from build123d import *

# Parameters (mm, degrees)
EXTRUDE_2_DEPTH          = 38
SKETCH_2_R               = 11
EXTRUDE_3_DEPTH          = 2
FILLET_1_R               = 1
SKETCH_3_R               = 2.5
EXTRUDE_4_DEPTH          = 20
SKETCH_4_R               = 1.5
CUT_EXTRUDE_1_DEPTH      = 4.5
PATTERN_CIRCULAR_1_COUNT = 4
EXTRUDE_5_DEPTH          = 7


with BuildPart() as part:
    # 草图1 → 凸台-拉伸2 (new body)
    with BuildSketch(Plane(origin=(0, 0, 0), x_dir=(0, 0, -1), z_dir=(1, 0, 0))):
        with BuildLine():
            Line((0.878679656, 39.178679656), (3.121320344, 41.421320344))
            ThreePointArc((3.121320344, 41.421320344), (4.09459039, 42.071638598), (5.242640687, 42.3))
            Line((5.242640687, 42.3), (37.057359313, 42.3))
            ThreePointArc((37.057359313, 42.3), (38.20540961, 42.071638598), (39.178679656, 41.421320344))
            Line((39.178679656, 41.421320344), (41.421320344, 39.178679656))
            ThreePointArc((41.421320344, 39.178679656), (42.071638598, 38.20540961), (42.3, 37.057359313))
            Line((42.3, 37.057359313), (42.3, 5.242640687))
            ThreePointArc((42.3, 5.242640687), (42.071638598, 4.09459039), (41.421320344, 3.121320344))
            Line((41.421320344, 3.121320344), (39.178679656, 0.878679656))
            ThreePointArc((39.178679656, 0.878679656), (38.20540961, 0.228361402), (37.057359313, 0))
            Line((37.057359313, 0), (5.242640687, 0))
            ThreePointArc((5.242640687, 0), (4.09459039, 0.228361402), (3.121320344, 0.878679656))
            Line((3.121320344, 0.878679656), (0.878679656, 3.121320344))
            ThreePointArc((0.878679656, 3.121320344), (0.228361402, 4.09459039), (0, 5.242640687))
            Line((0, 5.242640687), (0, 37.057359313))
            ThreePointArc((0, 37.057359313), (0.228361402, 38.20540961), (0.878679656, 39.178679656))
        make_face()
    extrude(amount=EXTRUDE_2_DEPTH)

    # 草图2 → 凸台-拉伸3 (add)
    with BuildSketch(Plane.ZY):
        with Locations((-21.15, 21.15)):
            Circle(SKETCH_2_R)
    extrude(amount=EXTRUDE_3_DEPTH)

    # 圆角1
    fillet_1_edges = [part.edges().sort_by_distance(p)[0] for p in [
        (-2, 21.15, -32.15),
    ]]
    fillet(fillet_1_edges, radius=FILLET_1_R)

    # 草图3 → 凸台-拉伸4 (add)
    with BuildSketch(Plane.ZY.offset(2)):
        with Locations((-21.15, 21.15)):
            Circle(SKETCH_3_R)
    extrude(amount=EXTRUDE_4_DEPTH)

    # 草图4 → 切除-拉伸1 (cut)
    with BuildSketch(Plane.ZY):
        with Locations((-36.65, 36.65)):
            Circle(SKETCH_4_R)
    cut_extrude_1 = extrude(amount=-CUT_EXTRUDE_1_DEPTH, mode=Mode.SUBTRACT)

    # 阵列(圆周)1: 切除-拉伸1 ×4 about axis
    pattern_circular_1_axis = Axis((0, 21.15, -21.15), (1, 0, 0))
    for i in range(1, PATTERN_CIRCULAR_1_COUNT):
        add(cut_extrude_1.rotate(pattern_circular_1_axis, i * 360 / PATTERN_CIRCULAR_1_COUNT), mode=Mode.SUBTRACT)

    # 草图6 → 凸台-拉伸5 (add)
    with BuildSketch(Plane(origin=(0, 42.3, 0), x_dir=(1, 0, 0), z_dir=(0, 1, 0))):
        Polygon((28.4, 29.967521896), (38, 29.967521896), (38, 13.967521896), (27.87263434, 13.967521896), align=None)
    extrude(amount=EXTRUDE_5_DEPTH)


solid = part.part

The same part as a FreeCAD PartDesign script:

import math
import FreeCAD as App
import Part
import Sketcher
from FreeCAD import Vector


def edges_at(feature, points):
    """Names of the edges that pass closest to the given points."""
    edges = feature.Shape.Edges
    near = lambda p: min(range(len(edges)), key=lambda i: edges[i].distToShape(Part.Vertex(*p))[0])
    return sorted({f"Edge{near(p) + 1}" for p in points})


def add_polygon(sketch, points):
    """Adds a closed chain of lines whose ends are joined by coincident constraints."""
    first, n = sketch.GeometryCount, len(points)
    for a, b in zip(points, points[1:] + points[:1]):
        sketch.addGeometry(Part.LineSegment(App.Vector(*a, 0), App.Vector(*b, 0)), False)
    for i in range(n):
        sketch.addConstraint(Sketcher.Constraint("Coincident", first + i, 2, first + (i + 1) % n, 1))

doc = App.newDocument("Part")
body = doc.addObject("PartDesign::Body", "Body")

# Sketch on YZ plane
sketch1 = doc.addObject("Sketcher::SketchObject", "Sketch")
body.addObject(sketch1)
sketch1.AttachmentSupport = (doc.YZ_Plane, [""])
sketch1.MapMode = "FlatFace"
sketch1.addGeometry([
    Part.LineSegment(Vector(41.4, -3.1, 0), Vector(39.2, -0.9, 0)),  # 0
    Part.ArcOfCircle(Part.Circle(Vector(37.1, -3, 0), Vector(0, 0, 1), 3), math.radians(45), math.radians(90)),  # 1
    Part.LineSegment(Vector(37.1, 0, 0), Vector(5.2, 0, 0)),  # 2
    Part.ArcOfCircle(Part.Circle(Vector(5.2, -3, 0), Vector(0, 0, 1), 3), math.radians(90), math.radians(135)),  # 3
    Part.LineSegment(Vector(3.1, -0.9, 0), Vector(0.9, -3.1, 0)),  # 4
    Part.ArcOfCircle(Part.Circle(Vector(3, -5.2, 0), Vector(0, 0, 1), 3), math.radians(135), math.radians(180)),  # 5
    Part.LineSegment(Vector(0, -5.2, 0), Vector(0, -37.1, 0)),  # 6
    Part.ArcOfCircle(Part.Circle(Vector(3, -37.1, 0), Vector(0, 0, 1), 3), math.radians(180), math.radians(225)),  # 7
    Part.LineSegment(Vector(0.9, -39.2, 0), Vector(3.1, -41.4, 0)),  # 8
    Part.ArcOfCircle(Part.Circle(Vector(5.2, -39.3, 0), Vector(0, 0, 1), 3), math.radians(-135), math.radians(-90)),  # 9
    Part.LineSegment(Vector(5.2, -42.3, 0), Vector(37.1, -42.3, 0)),  # 10
    Part.ArcOfCircle(Part.Circle(Vector(37.1, -39.3, 0), Vector(0, 0, 1), 3), math.radians(-90), math.radians(-45)),  # 11
    Part.LineSegment(Vector(39.2, -41.4, 0), Vector(41.4, -39.2, 0)),  # 12
    Part.ArcOfCircle(Part.Circle(Vector(39.3, -37.1, 0), Vector(0, 0, 1), 3), math.radians(-45), math.radians(0)),  # 13
    Part.LineSegment(Vector(42.3, -37.1, 0), Vector(42.3, -5.2, 0)),  # 14
    Part.ArcOfCircle(Part.Circle(Vector(39.3, -5.2, 0), Vector(0, 0, 1), 3), math.radians(0), math.radians(45)),  # 15
], False)
sketch1.addConstraint([
    Sketcher.Constraint("Tangent", 0, 2, 1, 1),
    Sketcher.Constraint("Tangent", 1, 2, 2, 1),
    Sketcher.Constraint("Tangent", 2, 2, 3, 1),
    Sketcher.Constraint("Tangent", 3, 2, 4, 1),
    Sketcher.Constraint("Tangent", 4, 2, 5, 1),
    Sketcher.Constraint("Tangent", 5, 2, 6, 1),
    Sketcher.Constraint("Tangent", 6, 2, 7, 1),
    Sketcher.Constraint("Tangent", 7, 2, 8, 1),
    Sketcher.Constraint("Tangent", 8, 2, 9, 1),
    Sketcher.Constraint("Tangent", 9, 2, 10, 1),
    Sketcher.Constraint("Tangent", 10, 2, 11, 1),
    Sketcher.Constraint("Tangent", 11, 2, 12, 1),
    Sketcher.Constraint("Tangent", 12, 2, 13, 1),
    Sketcher.Constraint("Tangent", 13, 2, 14, 1),
    Sketcher.Constraint("Tangent", 14, 2, 15, 1),
    Sketcher.Constraint("Tangent", 15, 2, 0, 1),
    Sketcher.Constraint("Horizontal", 2),
    Sketcher.Constraint("Vertical", 6),
    Sketcher.Constraint("Horizontal", 10),
    Sketcher.Constraint("Vertical", 14),
    Sketcher.Constraint("Equal", 1, 3),
    Sketcher.Constraint("Equal", 3, 5),
    Sketcher.Constraint("Equal", 5, 7),
    Sketcher.Constraint("Equal", 7, 9),
    Sketcher.Constraint("Equal", 9, 11),
    Sketcher.Constraint("Equal", 11, 13),
    Sketcher.Constraint("Equal", 13, 15),
    Sketcher.Constraint("PointOnObject", 1, 2, -1),
    Sketcher.Constraint("PointOnObject", 5, 2, -2),
    Sketcher.Constraint("Perpendicular", 0, 4),
    Sketcher.Constraint("Perpendicular", 4, 8),
    Sketcher.Constraint("Perpendicular", 8, 12),
    Sketcher.Constraint("Horizontal", 7, 3, 13, 3),
    Sketcher.Constraint("Horizontal", 5, 3, 15, 3),
    Sketcher.Constraint("Horizontal", 0, 2, 3, 2),
    Sketcher.Constraint("Vertical", 3, 3, 9, 3),
    Sketcher.Constraint("Equal", 10, 6),
    Sketcher.Constraint("Radius", 1, 3.0),
    Sketcher.Constraint("DistanceY", 9, 3, -1, 1, 39.3),
    Sketcher.Constraint("DistanceX", 2, 2, 2, 1, 31.814719),
])
pad1 = doc.addObject("PartDesign::Pad", "Pad")
body.addObject(pad1)
pad1.Profile = sketch1
pad1.Length = 38

# Sketch on YZ plane
sketch2 = doc.addObject("Sketcher::SketchObject", "Sketch001")
body.addObject(sketch2)
sketch2.AttachmentSupport = (doc.YZ_Plane, [""])
sketch2.MapMode = "FlatFace"
sketch2.addGeometry(Part.Circle(Vector(21, -21, 0), Vector(0, 0, 1), 11), False)
sketch2.addConstraint([
    Sketcher.Constraint("Diameter", 0, 22.0),
    Sketcher.Constraint("DistanceX", -1, 1, 0, 3, 21.15),
    Sketcher.Constraint("DistanceY", 0, 3, -1, 1, 21.15),
])
pad2 = doc.addObject("PartDesign::Pad", "Pad001")
body.addObject(pad2)
pad2.Profile = sketch2
pad2.Length = 2
pad2.Reversed = True
doc.recompute()

fillet = doc.addObject("PartDesign::Fillet", "Fillet")
body.addObject(fillet)
fillet.Base = (pad2, edges_at(pad2, [(-2, 21.15, -32.15)]))
fillet.Radius = 1

# Sketch on YZ plane
sketch3 = doc.addObject("Sketcher::SketchObject", "Sketch002")
body.addObject(sketch3)
sketch3.AttachmentSupport = (doc.YZ_Plane, [""])
sketch3.MapMode = "FlatFace"
sketch3.AttachmentOffset = App.Placement(Vector(0, 0, -2), App.Rotation())
sketch3.addGeometry(Part.Circle(Vector(21.1, -21.1, 0), Vector(0, 0, 1), 2.5), False)
sketch3.addConstraint([
    Sketcher.Constraint("Diameter", 0, 5.0),
    Sketcher.Constraint("DistanceX", -1, 1, 0, 3, 21.15),
    Sketcher.Constraint("DistanceY", 0, 3, -1, 1, 21.15),
])
pad3 = doc.addObject("PartDesign::Pad", "Pad002")
body.addObject(pad3)
pad3.Profile = sketch3
pad3.Length = 20
pad3.Reversed = True

# Sketch on YZ plane
sketch4 = doc.addObject("Sketcher::SketchObject", "Sketch003")
body.addObject(sketch4)
sketch4.AttachmentSupport = (doc.YZ_Plane, [""])
sketch4.MapMode = "FlatFace"
sketch4.addGeometry(Part.Circle(Vector(36.6, -36.6, 0), Vector(0, 0, 1), 1.5), False)
sketch4.addConstraint([
    Sketcher.Constraint("Diameter", 0, 3.0),
    Sketcher.Constraint("DistanceX", -1, 1, 0, 3, 36.65),
    Sketcher.Constraint("DistanceY", 0, 3, -1, 1, 36.65),
])
pocket1 = doc.addObject("PartDesign::Pocket", "Pocket")
body.addObject(pocket1)
pocket1.Profile = sketch4
pocket1.Length = 4.5
pocket1.Reversed = True
doc.recompute()

datumline = doc.addObject("PartDesign::Line", "DatumLine")
body.addObject(datumline)
datumline.Placement = App.Placement(Vector(0, 21.15, -21.15), App.Rotation(Vector(0, 0, 1), Vector(1, 0, 0)))
polarpattern = doc.addObject("PartDesign::PolarPattern", "PolarPattern")
body.addObject(polarpattern)
polarpattern.Originals = [pocket1]
polarpattern.Axis = (datumline, [""])
polarpattern.Angle = 360
polarpattern.Occurrences = 4
body.Tip = polarpattern

# Sketch on XZ plane
sketch5 = doc.addObject("Sketcher::SketchObject", "Sketch004")
body.addObject(sketch5)
sketch5.AttachmentSupport = (doc.XZ_Plane, [""])
sketch5.MapMode = "FlatFace"
sketch5.AttachmentOffset = App.Placement(Vector(0, 0, -42.3), App.Rotation())
add_polygon(sketch5, [(38, -29.967522), (28.4, -29.967522), (27.872634, -13.967522), (38, -13.967522)])  # lines 0-3
sketch5.addConstraint([
    Sketcher.Constraint("Horizontal", 0),
    Sketcher.Constraint("Horizontal", 2),
    Sketcher.Constraint("Vertical", 3),
    Sketcher.Constraint("DistanceY", 3, 2, 3, 1, 16.0),
    Sketcher.Constraint("DistanceX", 0, 2, 0, 1, 9.6),
    Sketcher.Constraint("DistanceX", -1, 1, 2, 2, 38.0),
    Sketcher.Constraint("Distance", 1, 16.008689),
    Sketcher.Constraint("DistanceY", 0, 2, -1, 1, 29.967522),
])
pad4 = doc.addObject("PartDesign::Pad", "Pad003")
body.addObject(pad4)
pad4.Profile = sketch5
pad4.Length = 7
pad4.Reversed = True

doc.recompute()
